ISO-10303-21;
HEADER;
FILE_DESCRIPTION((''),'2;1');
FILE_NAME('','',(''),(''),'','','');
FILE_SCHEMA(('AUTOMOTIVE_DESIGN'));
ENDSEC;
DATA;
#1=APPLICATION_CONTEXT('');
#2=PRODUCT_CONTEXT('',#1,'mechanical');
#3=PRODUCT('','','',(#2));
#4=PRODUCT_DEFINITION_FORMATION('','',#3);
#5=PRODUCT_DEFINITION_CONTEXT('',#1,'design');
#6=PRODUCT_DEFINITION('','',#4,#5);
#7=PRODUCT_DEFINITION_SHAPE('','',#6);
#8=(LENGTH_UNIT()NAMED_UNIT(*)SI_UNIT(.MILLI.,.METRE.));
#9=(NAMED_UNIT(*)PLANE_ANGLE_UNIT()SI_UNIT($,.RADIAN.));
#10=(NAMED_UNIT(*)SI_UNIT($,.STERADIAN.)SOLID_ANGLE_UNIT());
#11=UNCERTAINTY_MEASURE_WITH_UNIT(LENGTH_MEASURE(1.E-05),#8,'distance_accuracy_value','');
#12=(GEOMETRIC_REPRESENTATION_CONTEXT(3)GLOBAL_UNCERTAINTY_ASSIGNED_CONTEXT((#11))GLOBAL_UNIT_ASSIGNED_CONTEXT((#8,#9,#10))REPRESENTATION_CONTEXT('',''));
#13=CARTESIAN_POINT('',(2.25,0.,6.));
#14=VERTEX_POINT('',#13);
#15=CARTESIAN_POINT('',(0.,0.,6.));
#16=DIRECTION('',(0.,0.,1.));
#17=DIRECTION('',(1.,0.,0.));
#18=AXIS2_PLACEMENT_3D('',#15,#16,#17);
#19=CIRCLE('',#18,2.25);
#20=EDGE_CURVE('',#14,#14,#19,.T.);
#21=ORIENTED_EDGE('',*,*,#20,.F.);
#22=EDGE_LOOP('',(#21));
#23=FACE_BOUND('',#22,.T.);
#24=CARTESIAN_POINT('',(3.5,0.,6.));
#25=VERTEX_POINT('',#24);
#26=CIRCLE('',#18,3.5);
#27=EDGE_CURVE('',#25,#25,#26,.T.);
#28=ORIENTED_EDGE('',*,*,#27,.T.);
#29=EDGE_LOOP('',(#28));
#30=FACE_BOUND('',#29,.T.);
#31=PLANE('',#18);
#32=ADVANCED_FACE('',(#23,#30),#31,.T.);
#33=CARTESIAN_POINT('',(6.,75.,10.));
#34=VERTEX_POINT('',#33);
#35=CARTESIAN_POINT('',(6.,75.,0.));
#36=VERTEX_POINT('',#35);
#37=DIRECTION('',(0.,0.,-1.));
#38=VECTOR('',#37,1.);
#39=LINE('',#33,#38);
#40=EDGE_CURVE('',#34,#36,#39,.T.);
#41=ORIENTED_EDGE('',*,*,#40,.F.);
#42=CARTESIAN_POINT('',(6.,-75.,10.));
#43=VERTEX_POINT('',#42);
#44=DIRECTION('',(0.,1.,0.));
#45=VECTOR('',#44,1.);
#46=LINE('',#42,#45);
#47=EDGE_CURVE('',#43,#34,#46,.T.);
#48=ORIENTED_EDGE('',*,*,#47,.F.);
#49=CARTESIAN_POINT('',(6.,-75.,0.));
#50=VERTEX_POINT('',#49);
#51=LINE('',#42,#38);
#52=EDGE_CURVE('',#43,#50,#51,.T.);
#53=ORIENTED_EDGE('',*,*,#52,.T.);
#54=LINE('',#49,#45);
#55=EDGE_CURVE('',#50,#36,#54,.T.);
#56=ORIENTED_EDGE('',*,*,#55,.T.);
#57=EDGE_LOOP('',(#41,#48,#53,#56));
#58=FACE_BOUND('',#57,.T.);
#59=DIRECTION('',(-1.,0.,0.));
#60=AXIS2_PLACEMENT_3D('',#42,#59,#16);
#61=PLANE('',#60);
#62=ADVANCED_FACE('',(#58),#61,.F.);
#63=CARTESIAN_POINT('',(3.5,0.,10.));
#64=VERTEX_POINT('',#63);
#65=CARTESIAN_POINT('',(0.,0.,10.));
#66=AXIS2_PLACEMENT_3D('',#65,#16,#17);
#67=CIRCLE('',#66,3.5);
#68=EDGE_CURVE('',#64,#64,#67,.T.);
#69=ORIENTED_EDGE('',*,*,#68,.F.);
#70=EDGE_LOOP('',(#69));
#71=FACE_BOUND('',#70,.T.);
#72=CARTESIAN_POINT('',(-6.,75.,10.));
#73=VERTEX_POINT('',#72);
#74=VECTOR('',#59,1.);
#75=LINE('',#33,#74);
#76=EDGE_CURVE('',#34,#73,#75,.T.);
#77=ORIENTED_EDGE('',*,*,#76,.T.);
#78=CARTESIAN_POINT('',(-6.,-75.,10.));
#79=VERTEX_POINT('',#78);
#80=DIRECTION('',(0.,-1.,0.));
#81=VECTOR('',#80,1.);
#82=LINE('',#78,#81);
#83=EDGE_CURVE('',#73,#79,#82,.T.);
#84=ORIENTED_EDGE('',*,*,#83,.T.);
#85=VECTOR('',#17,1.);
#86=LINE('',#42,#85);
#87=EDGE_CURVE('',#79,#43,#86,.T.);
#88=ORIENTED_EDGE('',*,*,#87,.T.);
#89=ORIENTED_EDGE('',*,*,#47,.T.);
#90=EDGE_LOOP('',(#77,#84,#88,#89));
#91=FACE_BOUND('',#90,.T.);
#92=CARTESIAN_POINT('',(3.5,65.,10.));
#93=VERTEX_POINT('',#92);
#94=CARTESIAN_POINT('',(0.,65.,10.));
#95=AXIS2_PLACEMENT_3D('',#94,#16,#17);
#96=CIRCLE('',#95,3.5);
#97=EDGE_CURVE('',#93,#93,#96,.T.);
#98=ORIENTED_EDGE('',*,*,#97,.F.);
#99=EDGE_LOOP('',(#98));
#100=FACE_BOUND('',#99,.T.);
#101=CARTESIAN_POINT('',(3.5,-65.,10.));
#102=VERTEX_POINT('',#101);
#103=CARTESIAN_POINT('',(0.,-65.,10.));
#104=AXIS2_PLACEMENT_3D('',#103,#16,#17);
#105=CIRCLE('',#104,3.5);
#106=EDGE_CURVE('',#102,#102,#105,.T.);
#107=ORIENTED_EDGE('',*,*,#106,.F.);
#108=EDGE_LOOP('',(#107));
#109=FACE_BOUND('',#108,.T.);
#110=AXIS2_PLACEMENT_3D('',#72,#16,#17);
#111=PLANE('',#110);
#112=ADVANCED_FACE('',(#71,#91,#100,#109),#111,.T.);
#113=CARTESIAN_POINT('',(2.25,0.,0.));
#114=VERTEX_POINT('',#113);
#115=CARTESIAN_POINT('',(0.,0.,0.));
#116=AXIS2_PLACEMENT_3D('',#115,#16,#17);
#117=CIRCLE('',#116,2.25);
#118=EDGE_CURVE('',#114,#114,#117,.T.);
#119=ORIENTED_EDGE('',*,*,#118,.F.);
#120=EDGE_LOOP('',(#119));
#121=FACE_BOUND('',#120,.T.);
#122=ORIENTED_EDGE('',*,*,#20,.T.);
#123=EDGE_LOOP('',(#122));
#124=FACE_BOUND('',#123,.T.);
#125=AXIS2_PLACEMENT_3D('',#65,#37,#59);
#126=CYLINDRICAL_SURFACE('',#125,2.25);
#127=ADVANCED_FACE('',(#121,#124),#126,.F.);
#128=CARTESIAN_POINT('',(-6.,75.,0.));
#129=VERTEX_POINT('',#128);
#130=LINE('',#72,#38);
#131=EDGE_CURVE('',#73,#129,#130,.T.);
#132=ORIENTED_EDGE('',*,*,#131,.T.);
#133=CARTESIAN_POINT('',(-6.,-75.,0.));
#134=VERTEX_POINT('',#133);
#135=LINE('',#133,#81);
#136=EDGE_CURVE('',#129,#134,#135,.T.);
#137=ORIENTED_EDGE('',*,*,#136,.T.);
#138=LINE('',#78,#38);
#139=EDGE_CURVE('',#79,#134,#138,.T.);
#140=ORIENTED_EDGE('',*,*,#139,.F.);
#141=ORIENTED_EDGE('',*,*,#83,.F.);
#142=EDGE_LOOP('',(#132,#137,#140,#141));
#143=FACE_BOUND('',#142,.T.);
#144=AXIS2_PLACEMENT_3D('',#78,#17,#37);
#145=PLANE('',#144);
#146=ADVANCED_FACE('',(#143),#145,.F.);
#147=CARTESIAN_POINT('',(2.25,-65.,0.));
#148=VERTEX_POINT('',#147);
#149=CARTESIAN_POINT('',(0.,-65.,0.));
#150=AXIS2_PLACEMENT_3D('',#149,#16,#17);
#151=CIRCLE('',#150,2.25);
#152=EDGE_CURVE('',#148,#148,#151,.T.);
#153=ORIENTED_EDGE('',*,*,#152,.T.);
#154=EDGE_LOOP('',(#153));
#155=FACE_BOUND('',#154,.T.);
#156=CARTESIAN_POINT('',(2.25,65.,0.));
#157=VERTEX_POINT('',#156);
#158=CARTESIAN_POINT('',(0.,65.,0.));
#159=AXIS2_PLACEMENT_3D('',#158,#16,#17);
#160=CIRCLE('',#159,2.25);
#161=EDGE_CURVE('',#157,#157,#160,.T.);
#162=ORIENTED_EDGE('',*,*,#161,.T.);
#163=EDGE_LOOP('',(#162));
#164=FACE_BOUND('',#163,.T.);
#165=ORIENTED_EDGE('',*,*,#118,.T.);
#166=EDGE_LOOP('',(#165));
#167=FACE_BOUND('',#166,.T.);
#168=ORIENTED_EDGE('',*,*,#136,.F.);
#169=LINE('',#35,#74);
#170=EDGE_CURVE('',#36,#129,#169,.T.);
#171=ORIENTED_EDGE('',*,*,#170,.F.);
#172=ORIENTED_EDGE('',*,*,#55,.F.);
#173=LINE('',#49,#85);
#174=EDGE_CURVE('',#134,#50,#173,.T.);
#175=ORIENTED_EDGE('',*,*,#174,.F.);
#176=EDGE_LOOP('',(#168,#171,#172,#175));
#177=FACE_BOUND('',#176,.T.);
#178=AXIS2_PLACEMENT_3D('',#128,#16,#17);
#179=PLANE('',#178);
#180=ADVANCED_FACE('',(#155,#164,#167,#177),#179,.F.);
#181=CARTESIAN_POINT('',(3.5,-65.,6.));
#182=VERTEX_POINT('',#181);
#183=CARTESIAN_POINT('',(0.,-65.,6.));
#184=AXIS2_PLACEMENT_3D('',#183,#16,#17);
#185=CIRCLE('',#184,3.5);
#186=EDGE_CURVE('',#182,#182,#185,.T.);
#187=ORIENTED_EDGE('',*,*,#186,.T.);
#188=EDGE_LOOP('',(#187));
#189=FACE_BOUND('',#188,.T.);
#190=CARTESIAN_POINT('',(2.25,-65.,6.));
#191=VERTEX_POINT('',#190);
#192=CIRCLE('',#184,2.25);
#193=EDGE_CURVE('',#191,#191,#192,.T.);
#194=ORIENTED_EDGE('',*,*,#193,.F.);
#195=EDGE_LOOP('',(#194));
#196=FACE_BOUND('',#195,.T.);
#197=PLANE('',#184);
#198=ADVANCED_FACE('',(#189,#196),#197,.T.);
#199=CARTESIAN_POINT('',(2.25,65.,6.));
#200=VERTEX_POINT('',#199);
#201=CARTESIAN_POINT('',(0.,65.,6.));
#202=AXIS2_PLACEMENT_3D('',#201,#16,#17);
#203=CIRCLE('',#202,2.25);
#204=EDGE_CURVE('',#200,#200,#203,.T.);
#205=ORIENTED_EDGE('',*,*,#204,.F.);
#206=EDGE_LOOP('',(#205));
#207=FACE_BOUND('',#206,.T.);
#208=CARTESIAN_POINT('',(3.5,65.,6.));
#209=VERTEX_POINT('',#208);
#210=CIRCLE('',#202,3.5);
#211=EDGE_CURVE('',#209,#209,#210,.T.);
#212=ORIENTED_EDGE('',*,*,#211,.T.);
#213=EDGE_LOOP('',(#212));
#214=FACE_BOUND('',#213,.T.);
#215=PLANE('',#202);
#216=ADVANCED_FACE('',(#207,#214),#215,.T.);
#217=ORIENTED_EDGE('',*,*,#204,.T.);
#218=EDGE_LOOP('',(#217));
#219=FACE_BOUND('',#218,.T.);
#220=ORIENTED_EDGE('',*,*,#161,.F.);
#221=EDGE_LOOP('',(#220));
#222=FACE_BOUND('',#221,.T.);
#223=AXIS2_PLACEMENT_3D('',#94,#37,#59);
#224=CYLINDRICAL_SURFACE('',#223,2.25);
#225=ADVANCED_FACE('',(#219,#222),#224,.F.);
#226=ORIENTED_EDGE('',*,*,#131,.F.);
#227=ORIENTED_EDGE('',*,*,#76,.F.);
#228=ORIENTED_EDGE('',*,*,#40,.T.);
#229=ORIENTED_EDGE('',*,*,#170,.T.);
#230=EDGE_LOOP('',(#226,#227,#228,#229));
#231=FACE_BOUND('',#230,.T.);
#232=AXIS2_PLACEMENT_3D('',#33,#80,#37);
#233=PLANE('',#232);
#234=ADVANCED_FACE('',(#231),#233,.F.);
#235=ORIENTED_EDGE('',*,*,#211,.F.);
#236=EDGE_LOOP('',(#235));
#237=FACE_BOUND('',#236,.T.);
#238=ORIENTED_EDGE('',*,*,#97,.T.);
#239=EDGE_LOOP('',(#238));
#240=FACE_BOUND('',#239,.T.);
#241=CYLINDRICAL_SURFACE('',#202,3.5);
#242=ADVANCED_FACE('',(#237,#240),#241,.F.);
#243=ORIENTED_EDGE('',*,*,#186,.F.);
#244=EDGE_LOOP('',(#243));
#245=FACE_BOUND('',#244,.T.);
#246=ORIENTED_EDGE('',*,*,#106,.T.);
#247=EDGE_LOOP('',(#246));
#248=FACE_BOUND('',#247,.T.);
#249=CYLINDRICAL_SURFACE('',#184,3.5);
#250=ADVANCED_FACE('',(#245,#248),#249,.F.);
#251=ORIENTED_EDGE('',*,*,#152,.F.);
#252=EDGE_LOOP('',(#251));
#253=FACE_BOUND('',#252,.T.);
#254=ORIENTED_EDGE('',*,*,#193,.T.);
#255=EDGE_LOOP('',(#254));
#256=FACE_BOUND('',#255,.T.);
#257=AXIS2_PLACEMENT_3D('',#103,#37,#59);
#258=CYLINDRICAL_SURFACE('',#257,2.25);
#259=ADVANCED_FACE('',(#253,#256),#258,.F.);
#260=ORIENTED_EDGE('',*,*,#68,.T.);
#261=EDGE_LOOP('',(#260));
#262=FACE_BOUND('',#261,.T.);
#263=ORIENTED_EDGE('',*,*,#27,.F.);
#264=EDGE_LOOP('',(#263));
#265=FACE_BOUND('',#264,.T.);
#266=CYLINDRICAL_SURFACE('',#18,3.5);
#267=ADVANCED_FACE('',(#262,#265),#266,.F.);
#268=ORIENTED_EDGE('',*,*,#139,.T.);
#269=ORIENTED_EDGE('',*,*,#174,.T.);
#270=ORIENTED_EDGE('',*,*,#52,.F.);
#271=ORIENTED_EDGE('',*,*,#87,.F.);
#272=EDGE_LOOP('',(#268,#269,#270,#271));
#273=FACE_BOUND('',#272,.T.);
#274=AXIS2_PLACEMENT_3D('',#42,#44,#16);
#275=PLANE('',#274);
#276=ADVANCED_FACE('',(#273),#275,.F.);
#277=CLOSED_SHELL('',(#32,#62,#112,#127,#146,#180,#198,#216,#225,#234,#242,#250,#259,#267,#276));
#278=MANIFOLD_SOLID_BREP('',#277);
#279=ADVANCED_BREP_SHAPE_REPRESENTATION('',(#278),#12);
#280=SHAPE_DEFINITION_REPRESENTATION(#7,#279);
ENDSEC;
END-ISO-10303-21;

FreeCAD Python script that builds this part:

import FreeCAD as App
import Part
import Sketcher


def add_polygon(sketch, points):
    """Adds a closed chain of lines whose ends are joined by coincident constraints."""
    first, n = sketch.GeometryCount, len(points)
    for a, b in zip(points, points[1:] + points[:1]):
        sketch.addGeometry(Part.LineSegment(App.Vector(*a, 0), App.Vector(*b, 0)), False)
    for i in range(n):
        sketch.addConstraint(Sketcher.Constraint("Coincident", first + i, 2, first + (i + 1) % n, 1))

doc = App.newDocument("Part")
body = doc.addObject("PartDesign::Body", "Body")

sketch1 = body.newObject("Sketcher::SketchObject", "Sketch")
sketch1.AttachmentSupport = (doc.getObject("XY_Plane"), [""])
sketch1.MapMode = "FlatFace"
add_polygon(sketch1, [(-6, 75), (-6, -75), (6, -75), (6, 75)])
sketch1.addGeometry(Part.Circle(App.Vector(0, -65, 0), App.Vector(0, 0, 1), 2.2), False)
sketch1.addGeometry(Part.Circle(App.Vector(0, 0, 0), App.Vector(0, 0, 1), 2.2), False)
sketch1.addGeometry(Part.Circle(App.Vector(0, 65, 0), App.Vector(0, 0, 1), 2.2), False)
sketch1.addConstraint(Sketcher.Constraint("Vertical", 0))
sketch1.addConstraint(Sketcher.Constraint("Horizontal", 1))
sketch1.addConstraint(Sketcher.Constraint("Vertical", 2))
sketch1.addConstraint(Sketcher.Constraint("Horizontal", 3))
sketch1.addConstraint(Sketcher.Constraint("Coincident", 5, 3, -1, 1))
sketch1.addConstraint(Sketcher.Constraint("Equal", 4, 5))
sketch1.addConstraint(Sketcher.Constraint("Equal", 5, 6))
sketch1.addConstraint(Sketcher.Constraint("Symmetric", 4, 3, 6, 3, -1, 1))
sketch1.addConstraint(Sketcher.Constraint("Symmetric", 0, 2, 2, 2, -1, 1))
sketch1.addConstraint(Sketcher.Constraint("PointOnObject", 4, 3, -2))
sketch1.addConstraint(Sketcher.Constraint("Diameter", 4, 4.5))
sketch1.addConstraint(Sketcher.Constraint("DistanceX", 1, 1, 1, 2, 12.0))
sketch1.addConstraint(Sketcher.Constraint("DistanceY", 0, 2, 0, 1, 150.0))
sketch1.addConstraint(Sketcher.Constraint("DistanceY", 4, 3, -1, 1, 65.0))
pad1 = body.newObject("PartDesign::Pad", "Pad")
pad1.Profile = sketch1
pad1.Length = 10

sketch2 = body.newObject("Sketcher::SketchObject", "Sketch001")
sketch2.AttachmentSupport = (doc.getObject("XY_Plane"), [""])
sketch2.MapMode = "FlatFace"
sketch2.AttachmentOffset = App.Placement(App.Vector(0, 0, 10), App.Rotation())
sketch2.addGeometry(Part.Circle(App.Vector(0, 65, 0), App.Vector(0, 0, 1), 3.5), False)
sketch2.addGeometry(Part.Circle(App.Vector(0, 0, 0), App.Vector(0, 0, 1), 3.5), False)
sketch2.addGeometry(Part.Circle(App.Vector(0, -65, 0), App.Vector(0, 0, 1), 3.5), False)
sketch2.addConstraint(Sketcher.Constraint("Coincident", 1, 3, -1, 1))
sketch2.addConstraint(Sketcher.Constraint("Equal", 0, 1))
sketch2.addConstraint(Sketcher.Constraint("Equal", 1, 2))
sketch2.addConstraint(Sketcher.Constraint("Symmetric", 0, 3, 2, 3, -1, 1))
sketch2.addConstraint(Sketcher.Constraint("PointOnObject", 0, 3, -2))
sketch2.addConstraint(Sketcher.Constraint("Diameter", 0, 7.0))
sketch2.addConstraint(Sketcher.Constraint("DistanceY", -1, 1, 0, 3, 65.0))
pocket1 = body.newObject("PartDesign::Pocket", "Pocket")
pocket1.Profile = sketch2
pocket1.Length = 4

doc.recompute()
